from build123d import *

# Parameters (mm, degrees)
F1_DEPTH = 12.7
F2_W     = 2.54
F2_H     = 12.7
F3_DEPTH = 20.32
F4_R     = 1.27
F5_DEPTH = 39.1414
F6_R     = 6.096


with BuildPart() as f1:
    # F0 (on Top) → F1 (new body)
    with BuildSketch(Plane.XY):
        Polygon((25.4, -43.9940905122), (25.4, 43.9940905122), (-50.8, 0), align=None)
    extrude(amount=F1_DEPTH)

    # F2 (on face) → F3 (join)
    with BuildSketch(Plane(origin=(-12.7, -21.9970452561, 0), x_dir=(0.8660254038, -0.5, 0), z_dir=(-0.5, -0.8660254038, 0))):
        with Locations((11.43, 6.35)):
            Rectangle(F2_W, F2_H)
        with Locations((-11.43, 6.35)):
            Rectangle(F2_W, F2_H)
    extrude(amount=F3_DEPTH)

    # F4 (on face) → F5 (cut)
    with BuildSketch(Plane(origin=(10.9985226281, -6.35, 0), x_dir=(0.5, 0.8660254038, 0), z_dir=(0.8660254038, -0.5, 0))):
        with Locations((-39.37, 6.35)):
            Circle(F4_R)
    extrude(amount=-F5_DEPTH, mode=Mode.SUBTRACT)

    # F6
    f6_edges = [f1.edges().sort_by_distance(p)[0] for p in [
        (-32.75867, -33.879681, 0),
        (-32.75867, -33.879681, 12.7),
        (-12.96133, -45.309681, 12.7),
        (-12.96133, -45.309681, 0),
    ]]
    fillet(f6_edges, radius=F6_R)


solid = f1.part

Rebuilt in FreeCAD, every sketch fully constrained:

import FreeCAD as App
import Part
import Sketcher

V = App.Vector
Q = App.Units.Quantity


def edges_at(feature, points):
    """Names of the edges that pass closest to the given points."""
    edges = feature.Shape.Edges
    near = lambda p: min(range(len(edges)), key=lambda i: edges[i].distToShape(Part.Vertex(*p))[0])
    return sorted({f"Edge{near(p) + 1}" for p in points})


def add_polygon(sketch, points):
    """Adds a closed chain of lines whose ends are joined by coincident constraints."""
    first, n = sketch.GeometryCount, len(points)
    for a, b in zip(points, points[1:] + points[:1]):
        sketch.addGeometry(Part.LineSegment(App.Vector(*a, 0), App.Vector(*b, 0)), False)
    for i in range(n):
        sketch.addConstraint(Sketcher.Constraint("Coincident", first + i, 2, first + (i + 1) % n, 1))

doc = App.newDocument("Part")
body = doc.addObject("PartDesign::Body", "Body")

# Sketch on XY plane
sketch1 = doc.addObject("Sketcher::SketchObject", "Sketch")
body.addObject(sketch1)
sketch1.AttachmentSupport = (doc.XY_Plane, [""])
sketch1.MapMode = "FlatFace"
add_polygon(sketch1, [(25, -44), (25, 44), (-51, 0)])  # lines 0-2
sketch1.addConstraint([
    Sketcher.Constraint("Vertical", 0),
    Sketcher.Constraint("PointOnObject", 1, 2, -1),
    Sketcher.Constraint("Equal", 1, 2),
    Sketcher.Constraint("DistanceX", -1, 1, 0, 2, Q("1 in")),
    Sketcher.Constraint("DistanceX", 1, 2, -1, 1, Q("2 in")),
    Sketcher.Constraint("Angle", 1, Q("-150 deg")),
])
pad1 = doc.addObject("PartDesign::Pad", "Pad")
body.addObject(pad1)
pad1.Profile = sketch1
pad1.Length = Q("0.5 in")

# Sketch on an angled plane
sketch2 = doc.addObject("Sketcher::SketchObject", "Sketch001")
body.addObject(sketch2)
sketch2.Placement = App.Placement(V(-12.7, -21.997045, 0), App.Rotation(V(0.866025404, -0.5, 0), V(0, 0, 1), V(-0.5, -0.866025404, 0), "ZXY"))
add_polygon(sketch2, [(10.2, 12.7), (10.2, 0), (12.7, 0), (12.7, 12.7)])  # lines 0-3
add_polygon(sketch2, [(-12.7, 12.7), (-12.7, 0), (-10.2, 0), (-10.2, 12.7)])  # lines 4-7
sketch2.addConstraint([
    Sketcher.Constraint("Vertical", 0),
    Sketcher.Constraint("Horizontal", 1),
    Sketcher.Constraint("Vertical", 2),
    Sketcher.Constraint("Horizontal", 3),
    Sketcher.Constraint("Vertical", 4),
    Sketcher.Constraint("Horizontal", 5),
    Sketcher.Constraint("Vertical", 6),
    Sketcher.Constraint("Horizontal", 7),
    Sketcher.Constraint("Symmetric", 1, 2, 4, 2, -1, 1),
    Sketcher.Constraint("Symmetric", 0, 2, 5, 2, -2),
    Sketcher.Constraint("Horizontal", 3, 2, 6, 2),
    Sketcher.Constraint("DistanceX", 1, 1, 1, 2, Q("0.1 in")),
    Sketcher.Constraint("DistanceY", 0, 2, 0, 1, Q("0.5 in")),
    Sketcher.Constraint("DistanceX", 4, 2, 1, 2, Q("1 in")),
])
pad2 = doc.addObject("PartDesign::Pad", "Pad001")
body.addObject(pad2)
pad2.Profile = sketch2
pad2.Length = Q("0.8 in")

# Sketch on an angled plane
sketch3 = doc.addObject("Sketcher::SketchObject", "Sketch002")
body.addObject(sketch3)
sketch3.Placement = App.Placement(V(10.998523, -6.35, 0), App.Rotation(V(0.5, 0.866025404, 0), V(0, 0, 1), V(0.866025404, -0.5, 0), "ZXY"))
sketch3.addGeometry(Part.Circle(V(-39.4, 6.4, 0), V(0, 0, 1), 1.3), False)
sketch3.addConstraint([
    Sketcher.Constraint("Diameter", 0, Q("0.1 in")),
    Sketcher.Constraint("DistanceX", 0, 3, -1, 1, Q("1.55 in")),
    Sketcher.Constraint("DistanceY", -1, 1, 0, 3, Q("0.25 in")),
])
pocket1 = doc.addObject("PartDesign::Pocket", "Pocket")
body.addObject(pocket1)
pocket1.Profile = sketch3
pocket1.Length = Q("1.541 in")
doc.recompute()

fillet = doc.addObject("PartDesign::Fillet", "Fillet")
body.addObject(fillet)
fillet.Base = (pocket1, edges_at(pocket1, [
    (-32.759, -33.88, 0),
    (-32.759, -33.88, 12.7),
    (-12.961, -45.31, 12.7),
    (-12.961, -45.31, 0),
]))
fillet.Radius = Q("0.24 in")

doc.recompute()
